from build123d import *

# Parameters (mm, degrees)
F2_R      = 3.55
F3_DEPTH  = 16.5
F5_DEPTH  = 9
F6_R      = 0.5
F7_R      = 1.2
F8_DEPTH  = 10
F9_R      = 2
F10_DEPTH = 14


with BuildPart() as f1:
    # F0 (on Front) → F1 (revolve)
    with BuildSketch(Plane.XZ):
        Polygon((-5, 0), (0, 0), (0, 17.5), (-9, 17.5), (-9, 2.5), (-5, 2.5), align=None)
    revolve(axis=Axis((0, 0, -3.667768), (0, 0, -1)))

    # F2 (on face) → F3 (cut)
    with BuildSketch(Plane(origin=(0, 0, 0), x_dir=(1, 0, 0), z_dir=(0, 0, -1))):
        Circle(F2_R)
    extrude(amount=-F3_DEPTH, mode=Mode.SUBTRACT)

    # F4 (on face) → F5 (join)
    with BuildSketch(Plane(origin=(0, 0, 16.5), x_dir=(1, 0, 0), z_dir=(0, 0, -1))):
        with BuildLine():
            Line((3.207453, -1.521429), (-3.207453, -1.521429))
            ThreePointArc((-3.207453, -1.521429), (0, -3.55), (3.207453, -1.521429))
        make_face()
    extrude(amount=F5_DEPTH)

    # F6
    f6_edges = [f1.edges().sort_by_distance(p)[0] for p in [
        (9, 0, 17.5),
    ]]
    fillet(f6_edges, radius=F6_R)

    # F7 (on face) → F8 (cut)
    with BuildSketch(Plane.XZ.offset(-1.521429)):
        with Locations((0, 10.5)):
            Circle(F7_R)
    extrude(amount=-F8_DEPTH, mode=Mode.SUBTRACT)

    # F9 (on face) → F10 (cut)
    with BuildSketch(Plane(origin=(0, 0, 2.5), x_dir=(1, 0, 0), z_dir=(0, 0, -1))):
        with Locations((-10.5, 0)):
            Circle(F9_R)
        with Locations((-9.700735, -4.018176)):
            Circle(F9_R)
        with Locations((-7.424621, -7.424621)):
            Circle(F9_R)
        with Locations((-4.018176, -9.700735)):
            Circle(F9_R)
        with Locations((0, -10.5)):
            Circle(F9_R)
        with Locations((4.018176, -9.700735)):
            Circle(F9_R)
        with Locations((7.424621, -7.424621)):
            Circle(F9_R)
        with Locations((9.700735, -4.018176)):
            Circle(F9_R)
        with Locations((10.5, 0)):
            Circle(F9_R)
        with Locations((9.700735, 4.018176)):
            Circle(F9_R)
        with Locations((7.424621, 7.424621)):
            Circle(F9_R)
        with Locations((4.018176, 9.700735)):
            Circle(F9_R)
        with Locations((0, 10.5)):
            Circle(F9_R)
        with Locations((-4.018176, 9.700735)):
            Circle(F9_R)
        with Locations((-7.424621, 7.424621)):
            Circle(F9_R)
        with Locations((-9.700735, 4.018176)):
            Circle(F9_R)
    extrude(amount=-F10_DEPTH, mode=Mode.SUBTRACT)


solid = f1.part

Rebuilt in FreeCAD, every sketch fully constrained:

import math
import FreeCAD as App
import Part
import Sketcher
Q = App.Units.Quantity


def edges_at(feature, points):
    """Names of the edges that pass closest to the given points."""
    edges = feature.Shape.Edges
    near = lambda p: min(range(len(edges)), key=lambda i: edges[i].distToShape(Part.Vertex(*p))[0])
    return sorted({f"Edge{near(p) + 1}" for p in points})


def add_polygon(sketch, points):
    """Adds a closed chain of lines whose ends are joined by coincident constraints."""
    first, n = sketch.GeometryCount, len(points)
    for a, b in zip(points, points[1:] + points[:1]):
        sketch.addGeometry(Part.LineSegment(App.Vector(*a, 0), App.Vector(*b, 0)), False)
    for i in range(n):
        sketch.addConstraint(Sketcher.Constraint("Coincident", first + i, 2, first + (i + 1) % n, 1))

doc = App.newDocument("Part")
params = doc.addObject("Spreadsheet::Sheet", "Params")
for row, (alias, value) in enumerate([
    ("sketch1_width", "5 mm"),
    ("sketch1_width2", "9 mm"),
    ("sketch1_height", "15 mm"),
    ("sketch1_height2", "17.5 mm"),
    ("revolution_angle", "360 deg"),
    ("sketch2_diameter", "7.1 mm"),
    ("pocket1_length", "16.5 mm"),
    ("sketch3_radius", "3.55 mm"),
    ("pad1_length", "9 mm"),
    ("fillet_radius", "0.5 mm"),
    ("sketch4_diameter", "2.4 mm"),
    ("pocket2_length", "10 mm"),
    ("sketch5_diameter", "4 mm"),
    ("pocket3_length", "14 mm"),
], start=1):
    params.set(f"A{row}", alias)
    params.set(f"B{row}", "=" + value)
    params.setAlias(f"B{row}", alias)

body = doc.addObject("PartDesign::Body", "Body")

# Sketch on XZ plane
sketch1 = body.newObject("Sketcher::SketchObject", "Sketch")
sketch1.AttachmentSupport = (doc.getObject("XZ_Plane"), [""])
sketch1.MapMode = "FlatFace"
add_polygon(sketch1, [(-5, 0), (0, 0), (0, 17.5), (-9, 17.5), (-9, 2.5), (-5, 2.5)])  # lines 0-5
sketch1.addConstraint([
    Sketcher.Constraint("Horizontal", 0),
    Sketcher.Constraint("Vertical", 1),
    Sketcher.Constraint("Horizontal", 2),
    Sketcher.Constraint("Vertical", 3),
    Sketcher.Constraint("Horizontal", 4),
    Sketcher.Constraint("Vertical", 5),
    Sketcher.Constraint("Coincident", 0, 2, -1, 1),
    Sketcher.Constraint("DistanceX", 0, 1, 0, 2, Q("5 mm")),
    Sketcher.Constraint("DistanceX", 2, 2, 2, 1, Q("9 mm")),
    Sketcher.Constraint("DistanceY", 3, 2, 3, 1, Q("15 mm")),
    Sketcher.Constraint("DistanceY", 1, 1, 1, 2, Q("17.5 mm")),
])
sketch1.setExpression("Constraints[13]", "Params.sketch1_width")
sketch1.setExpression("Constraints[14]", "Params.sketch1_width2")
sketch1.setExpression("Constraints[15]", "Params.sketch1_height")
sketch1.setExpression("Constraints[16]", "Params.sketch1_height2")
revolution = body.newObject("PartDesign::Revolution", "Revolution")
revolution.Profile = sketch1
revolution.ReferenceAxis = (sketch1, ["V_Axis"])
revolution.setExpression("Angle", "Params.revolution_angle")

# Sketch on XY plane
sketch2 = body.newObject("Sketcher::SketchObject", "Sketch001")
sketch2.AttachmentSupport = (doc.getObject("XY_Plane"), [""])
sketch2.MapMode = "FlatFace"
sketch2.addGeometry(Part.Circle(App.Vector(0, 0, 0), App.Vector(0, 0, 1), 3.55), False)
sketch2.addConstraint([
    Sketcher.Constraint("Coincident", 0, 3, -1, 1),
    Sketcher.Constraint("Diameter", 0, Q("7.1 mm")),
])
sketch2.setExpression("Constraints[1]", "Params.sketch2_diameter")
pocket1 = body.newObject("PartDesign::Pocket", "Pocket")
pocket1.Profile = sketch2
pocket1.setExpression("Length", "Params.pocket1_length")
pocket1.Reversed = True

# Sketch on XY plane
sketch3 = body.newObject("Sketcher::SketchObject", "Sketch002")
sketch3.AttachmentSupport = (doc.getObject("XY_Plane"), [""])
sketch3.MapMode = "FlatFace"
sketch3.AttachmentOffset = App.Placement(App.Vector(0, 0, 16.5), App.Rotation())
sketch3.addGeometry([
    Part.LineSegment(App.Vector(3.207453, 1.521429, 0), App.Vector(-3.207453, 1.521429, 0)),
    Part.ArcOfCircle(Part.Circle(App.Vector(0, 0, 0), App.Vector(0, 0, 1), 3.55), math.radians(25.376944), math.radians(154.623056)),
], False)
sketch3.addConstraint([
    Sketcher.Constraint("Coincident", 0, 1, 1, 1),
    Sketcher.Constraint("Coincident", 1, 2, 0, 2),
    Sketcher.Constraint("Horizontal", 0),
    Sketcher.Constraint("Coincident", 1, 3, -1, 1),
    Sketcher.Constraint("Radius", 1, Q("3.55 mm")),
    Sketcher.Constraint("DistanceX", 0, 2, 0, 1, Q("6.414906 mm")),
])
sketch3.setExpression("Constraints[4]", "Params.sketch3_radius")
pad1 = body.newObject("PartDesign::Pad", "Pad")
pad1.Profile = sketch3
pad1.setExpression("Length", "Params.pad1_length")
pad1.Reversed = True
doc.recompute()

fillet = body.newObject("PartDesign::Fillet", "Fillet")
fillet.Base = (pad1, edges_at(pad1, [(9, 0, 17.5)]))
fillet.setExpression("Radius", "Params.fillet_radius")

# Sketch on XZ plane
sketch4 = body.newObject("Sketcher::SketchObject", "Sketch003")
sketch4.AttachmentSupport = (doc.getObject("XZ_Plane"), [""])
sketch4.MapMode = "FlatFace"
sketch4.AttachmentOffset = App.Placement(App.Vector(0, 0, -1.521429), App.Rotation())
sketch4.addGeometry(Part.Circle(App.Vector(0, 10.5, 0), App.Vector(0, 0, 1), 1.2), False)
sketch4.addConstraint([
    Sketcher.Constraint("PointOnObject", 0, 3, -2),
    Sketcher.Constraint("Diameter", 0, Q("2.4 mm")),
    Sketcher.Constraint("DistanceY", -1, 1, 0, 3, Q("10.5 mm")),
])
sketch4.setExpression("Constraints[1]", "Params.sketch4_diameter")
pocket2 = body.newObject("PartDesign::Pocket", "Pocket001")
pocket2.Profile = sketch4
pocket2.setExpression("Length", "Params.pocket2_length")

# Sketch on XY plane
sketch5 = body.newObject("Sketcher::SketchObject", "Sketch004")
sketch5.AttachmentSupport = (doc.getObject("XY_Plane"), [""])
sketch5.MapMode = "FlatFace"
sketch5.AttachmentOffset = App.Placement(App.Vector(0, 0, 2.5), App.Rotation())
sketch5.addGeometry([
    Part.Circle(App.Vector(-10.5, 0, 0), App.Vector(0, 0, 1), 2),  # 0
    Part.Circle(App.Vector(-9.700735, 4.018176, 0), App.Vector(0, 0, 1), 2),  # 1
    Part.Circle(App.Vector(-7.424621, 7.424621, 0), App.Vector(0, 0, 1), 2),  # 2
    Part.Circle(App.Vector(-4.018176, 9.700735, 0), App.Vector(0, 0, 1), 2),  # 3
    Part.Circle(App.Vector(0, 10.5, 0), App.Vector(0, 0, 1), 2),  # 4
    Part.Circle(App.Vector(4.018176, 9.700735, 0), App.Vector(0, 0, 1), 2),  # 5
    Part.Circle(App.Vector(7.424621, 7.424621, 0), App.Vector(0, 0, 1), 2),  # 6
    Part.Circle(App.Vector(9.700735, 4.018176, 0), App.Vector(0, 0, 1), 2),  # 7
    Part.Circle(App.Vector(10.5, 0, 0), App.Vector(0, 0, 1), 2),  # 8
    Part.Circle(App.Vector(9.700735, -4.018176, 0), App.Vector(0, 0, 1), 2),  # 9
    Part.Circle(App.Vector(7.424621, -7.424621, 0), App.Vector(0, 0, 1), 2),  # 10
    Part.Circle(App.Vector(4.018176, -9.700735, 0), App.Vector(0, 0, 1), 2),  # 11
    Part.Circle(App.Vector(0, -10.5, 0), App.Vector(0, 0, 1), 2),  # 12
    Part.Circle(App.Vector(-4.018176, -9.700735, 0), App.Vector(0, 0, 1), 2),  # 13
    Part.Circle(App.Vector(-7.424621, -7.424621, 0), App.Vector(0, 0, 1), 2),  # 14
    Part.Circle(App.Vector(-9.700735, -4.018176, 0), App.Vector(0, 0, 1), 2),  # 15
], False)
sketch5.addConstraint([
    Sketcher.Constraint("Equal", 0, 1),
    Sketcher.Constraint("Equal", 1, 2),
    Sketcher.Constraint("Equal", 2, 3),
    Sketcher.Constraint("Equal", 3, 4),
    Sketcher.Constraint("Equal", 4, 5),
    Sketcher.Constraint("Equal", 5, 6),
    Sketcher.Constraint("Equal", 6, 7),
    Sketcher.Constraint("Equal", 7, 8),
    Sketcher.Constraint("Equal", 8, 9),
    Sketcher.Constraint("Equal", 9, 10),
    Sketcher.Constraint("Equal", 10, 11),
    Sketcher.Constraint("Equal", 11, 12),
    Sketcher.Constraint("Equal", 12, 13),
    Sketcher.Constraint("Equal", 13, 14),
    Sketcher.Constraint("Equal", 14, 15),
    Sketcher.Constraint("Symmetric", 0, 3, 8, 3, -1, 1),
    Sketcher.Constraint("Symmetric", 1, 3, 9, 3, -1, 1),
    Sketcher.Constraint("Symmetric", 2, 3, 10, 3, -1, 1),
    Sketcher.Constraint("Symmetric", 3, 3, 11, 3, -1, 1),
    Sketcher.Constraint("Symmetric", 4, 3, 12, 3, -1, 1),
    Sketcher.Constraint("Symmetric", 5, 3, 13, 3, -1, 1),
    Sketcher.Constraint("Symmetric", 6, 3, 14, 3, -1, 1),
    Sketcher.Constraint("Symmetric", 7, 3, 15, 3, -1, 1),
    Sketcher.Constraint("Symmetric", 3, 3, 5, 3, -2),
    Sketcher.Constraint("Symmetric", 2, 3, 6, 3, -2),
    Sketcher.Constraint("Symmetric", 1, 3, 7, 3, -2),
    Sketcher.Constraint("PointOnObject", 0, 3, -1),
    Sketcher.Constraint("PointOnObject", 4, 3, -2),
    Sketcher.Constraint("Diameter", 0, Q("4 mm")),
    Sketcher.Constraint("DistanceX", 0, 3, -1, 1, Q("10.5 mm")),
    Sketcher.Constraint("DistanceY", -1, 1, 4, 3, Q("10.5 mm")),
    Sketcher.Constraint("DistanceX", 2, 3, -1, 1, Q("7.424621 mm")),
    Sketcher.Constraint("DistanceY", -1, 1, 2, 3, Q("7.424621 mm")),
    Sketcher.Constraint("DistanceX", 1, 3, 3, 3, Q("5.682559 mm")),
    Sketcher.Constraint("DistanceY", 1, 3, 3, 3, Q("5.682559 mm")),
    Sketcher.Constraint("DistanceX", 1, 3, 5, 3, Q("13.718911 mm")),
    Sketcher.Constraint("DistanceY", 9, 3, 5, 3, Q("13.718911 mm")),
])
sketch5.setExpression("Constraints[28]", "Params.sketch5_diameter")
pocket3 = body.newObject("PartDesign::Pocket", "Pocket002")
pocket3.Profile = sketch5
pocket3.setExpression("Length", "Params.pocket3_length")
pocket3.Reversed = True

doc.recompute()
